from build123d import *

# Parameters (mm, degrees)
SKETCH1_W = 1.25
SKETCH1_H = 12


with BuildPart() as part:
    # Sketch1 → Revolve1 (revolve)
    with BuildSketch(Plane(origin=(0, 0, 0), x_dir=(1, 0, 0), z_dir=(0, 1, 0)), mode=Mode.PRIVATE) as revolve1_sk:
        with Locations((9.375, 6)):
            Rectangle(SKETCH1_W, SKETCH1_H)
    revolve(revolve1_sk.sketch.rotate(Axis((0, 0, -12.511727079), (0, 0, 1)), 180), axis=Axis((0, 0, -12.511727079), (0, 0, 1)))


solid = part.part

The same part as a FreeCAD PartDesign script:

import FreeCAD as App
import Part
import Sketcher

V = App.Vector
Q = App.Units.Quantity

doc = App.newDocument("Part")
params = doc.addObject("Spreadsheet::Sheet", "Params")
for row, (alias, value) in enumerate([
    ("sketch1_height", "12 mm"),
    ("sketch1_width", "1.25 mm"),
    ("revolution_angle", "360 deg"),
], start=1):
    params.set(f"A{row}", alias)
    params.set(f"B{row}", "=" + value)
    params.setAlias(f"B{row}", alias)

body = doc.addObject("PartDesign::Body", "Body")

# Sketch on XZ plane
sketch1 = body.newObject("Sketcher::SketchObject", "Sketch")
sketch1.AttachmentSupport = (doc.getObject("XZ_Plane"), [""])
sketch1.MapMode = "FlatFace"
sketch1.addGeometry(Part.LineSegment(V(8.75, -12, 0), V(8.75, 0, 0)), False)
sketch1.addGeometry(Part.LineSegment(V(8.75, 0, 0), V(10, 0, 0)), False)
sketch1.addGeometry(Part.LineSegment(V(10, 0, 0), V(10, -12, 0)), False)
sketch1.addGeometry(Part.LineSegment(V(10, -12, 0), V(8.75, -12, 0)), False)
sketch1.addConstraint(Sketcher.Constraint("Coincident", 0, 2, 1, 1))
sketch1.addConstraint(Sketcher.Constraint("Coincident", 1, 2, 2, 1))
sketch1.addConstraint(Sketcher.Constraint("Coincident", 2, 2, 3, 1))
sketch1.addConstraint(Sketcher.Constraint("Coincident", 3, 2, 0, 1))
sketch1.addConstraint(Sketcher.Constraint("Vertical", 0))
sketch1.addConstraint(Sketcher.Constraint("Horizontal", 1))
sketch1.addConstraint(Sketcher.Constraint("Vertical", 2))
sketch1.addConstraint(Sketcher.Constraint("Horizontal", 3))
sketch1.addConstraint(Sketcher.Constraint("PointOnObject", 0, 2, -1))
sketch1.addConstraint(Sketcher.Constraint("DistanceY", 0, 1, 0, 2, Q("12 mm")))
sketch1.addConstraint(Sketcher.Constraint("DistanceX", -1, 1, 1, 2, Q("10 mm")))
sketch1.addConstraint(Sketcher.Constraint("DistanceX", 1, 1, 1, 2, Q("1.25 mm")))
sketch1.setExpression("Constraints[9]", "Params.sketch1_height")
sketch1.setExpression("Constraints[11]", "Params.sketch1_width")
revolution = body.newObject("PartDesign::Revolution", "Revolution")
revolution.Profile = sketch1
revolution.ReferenceAxis = (sketch1, ["V_Axis"])
revolution.setExpression("Angle", "Params.revolution_angle")

doc.recompute()
